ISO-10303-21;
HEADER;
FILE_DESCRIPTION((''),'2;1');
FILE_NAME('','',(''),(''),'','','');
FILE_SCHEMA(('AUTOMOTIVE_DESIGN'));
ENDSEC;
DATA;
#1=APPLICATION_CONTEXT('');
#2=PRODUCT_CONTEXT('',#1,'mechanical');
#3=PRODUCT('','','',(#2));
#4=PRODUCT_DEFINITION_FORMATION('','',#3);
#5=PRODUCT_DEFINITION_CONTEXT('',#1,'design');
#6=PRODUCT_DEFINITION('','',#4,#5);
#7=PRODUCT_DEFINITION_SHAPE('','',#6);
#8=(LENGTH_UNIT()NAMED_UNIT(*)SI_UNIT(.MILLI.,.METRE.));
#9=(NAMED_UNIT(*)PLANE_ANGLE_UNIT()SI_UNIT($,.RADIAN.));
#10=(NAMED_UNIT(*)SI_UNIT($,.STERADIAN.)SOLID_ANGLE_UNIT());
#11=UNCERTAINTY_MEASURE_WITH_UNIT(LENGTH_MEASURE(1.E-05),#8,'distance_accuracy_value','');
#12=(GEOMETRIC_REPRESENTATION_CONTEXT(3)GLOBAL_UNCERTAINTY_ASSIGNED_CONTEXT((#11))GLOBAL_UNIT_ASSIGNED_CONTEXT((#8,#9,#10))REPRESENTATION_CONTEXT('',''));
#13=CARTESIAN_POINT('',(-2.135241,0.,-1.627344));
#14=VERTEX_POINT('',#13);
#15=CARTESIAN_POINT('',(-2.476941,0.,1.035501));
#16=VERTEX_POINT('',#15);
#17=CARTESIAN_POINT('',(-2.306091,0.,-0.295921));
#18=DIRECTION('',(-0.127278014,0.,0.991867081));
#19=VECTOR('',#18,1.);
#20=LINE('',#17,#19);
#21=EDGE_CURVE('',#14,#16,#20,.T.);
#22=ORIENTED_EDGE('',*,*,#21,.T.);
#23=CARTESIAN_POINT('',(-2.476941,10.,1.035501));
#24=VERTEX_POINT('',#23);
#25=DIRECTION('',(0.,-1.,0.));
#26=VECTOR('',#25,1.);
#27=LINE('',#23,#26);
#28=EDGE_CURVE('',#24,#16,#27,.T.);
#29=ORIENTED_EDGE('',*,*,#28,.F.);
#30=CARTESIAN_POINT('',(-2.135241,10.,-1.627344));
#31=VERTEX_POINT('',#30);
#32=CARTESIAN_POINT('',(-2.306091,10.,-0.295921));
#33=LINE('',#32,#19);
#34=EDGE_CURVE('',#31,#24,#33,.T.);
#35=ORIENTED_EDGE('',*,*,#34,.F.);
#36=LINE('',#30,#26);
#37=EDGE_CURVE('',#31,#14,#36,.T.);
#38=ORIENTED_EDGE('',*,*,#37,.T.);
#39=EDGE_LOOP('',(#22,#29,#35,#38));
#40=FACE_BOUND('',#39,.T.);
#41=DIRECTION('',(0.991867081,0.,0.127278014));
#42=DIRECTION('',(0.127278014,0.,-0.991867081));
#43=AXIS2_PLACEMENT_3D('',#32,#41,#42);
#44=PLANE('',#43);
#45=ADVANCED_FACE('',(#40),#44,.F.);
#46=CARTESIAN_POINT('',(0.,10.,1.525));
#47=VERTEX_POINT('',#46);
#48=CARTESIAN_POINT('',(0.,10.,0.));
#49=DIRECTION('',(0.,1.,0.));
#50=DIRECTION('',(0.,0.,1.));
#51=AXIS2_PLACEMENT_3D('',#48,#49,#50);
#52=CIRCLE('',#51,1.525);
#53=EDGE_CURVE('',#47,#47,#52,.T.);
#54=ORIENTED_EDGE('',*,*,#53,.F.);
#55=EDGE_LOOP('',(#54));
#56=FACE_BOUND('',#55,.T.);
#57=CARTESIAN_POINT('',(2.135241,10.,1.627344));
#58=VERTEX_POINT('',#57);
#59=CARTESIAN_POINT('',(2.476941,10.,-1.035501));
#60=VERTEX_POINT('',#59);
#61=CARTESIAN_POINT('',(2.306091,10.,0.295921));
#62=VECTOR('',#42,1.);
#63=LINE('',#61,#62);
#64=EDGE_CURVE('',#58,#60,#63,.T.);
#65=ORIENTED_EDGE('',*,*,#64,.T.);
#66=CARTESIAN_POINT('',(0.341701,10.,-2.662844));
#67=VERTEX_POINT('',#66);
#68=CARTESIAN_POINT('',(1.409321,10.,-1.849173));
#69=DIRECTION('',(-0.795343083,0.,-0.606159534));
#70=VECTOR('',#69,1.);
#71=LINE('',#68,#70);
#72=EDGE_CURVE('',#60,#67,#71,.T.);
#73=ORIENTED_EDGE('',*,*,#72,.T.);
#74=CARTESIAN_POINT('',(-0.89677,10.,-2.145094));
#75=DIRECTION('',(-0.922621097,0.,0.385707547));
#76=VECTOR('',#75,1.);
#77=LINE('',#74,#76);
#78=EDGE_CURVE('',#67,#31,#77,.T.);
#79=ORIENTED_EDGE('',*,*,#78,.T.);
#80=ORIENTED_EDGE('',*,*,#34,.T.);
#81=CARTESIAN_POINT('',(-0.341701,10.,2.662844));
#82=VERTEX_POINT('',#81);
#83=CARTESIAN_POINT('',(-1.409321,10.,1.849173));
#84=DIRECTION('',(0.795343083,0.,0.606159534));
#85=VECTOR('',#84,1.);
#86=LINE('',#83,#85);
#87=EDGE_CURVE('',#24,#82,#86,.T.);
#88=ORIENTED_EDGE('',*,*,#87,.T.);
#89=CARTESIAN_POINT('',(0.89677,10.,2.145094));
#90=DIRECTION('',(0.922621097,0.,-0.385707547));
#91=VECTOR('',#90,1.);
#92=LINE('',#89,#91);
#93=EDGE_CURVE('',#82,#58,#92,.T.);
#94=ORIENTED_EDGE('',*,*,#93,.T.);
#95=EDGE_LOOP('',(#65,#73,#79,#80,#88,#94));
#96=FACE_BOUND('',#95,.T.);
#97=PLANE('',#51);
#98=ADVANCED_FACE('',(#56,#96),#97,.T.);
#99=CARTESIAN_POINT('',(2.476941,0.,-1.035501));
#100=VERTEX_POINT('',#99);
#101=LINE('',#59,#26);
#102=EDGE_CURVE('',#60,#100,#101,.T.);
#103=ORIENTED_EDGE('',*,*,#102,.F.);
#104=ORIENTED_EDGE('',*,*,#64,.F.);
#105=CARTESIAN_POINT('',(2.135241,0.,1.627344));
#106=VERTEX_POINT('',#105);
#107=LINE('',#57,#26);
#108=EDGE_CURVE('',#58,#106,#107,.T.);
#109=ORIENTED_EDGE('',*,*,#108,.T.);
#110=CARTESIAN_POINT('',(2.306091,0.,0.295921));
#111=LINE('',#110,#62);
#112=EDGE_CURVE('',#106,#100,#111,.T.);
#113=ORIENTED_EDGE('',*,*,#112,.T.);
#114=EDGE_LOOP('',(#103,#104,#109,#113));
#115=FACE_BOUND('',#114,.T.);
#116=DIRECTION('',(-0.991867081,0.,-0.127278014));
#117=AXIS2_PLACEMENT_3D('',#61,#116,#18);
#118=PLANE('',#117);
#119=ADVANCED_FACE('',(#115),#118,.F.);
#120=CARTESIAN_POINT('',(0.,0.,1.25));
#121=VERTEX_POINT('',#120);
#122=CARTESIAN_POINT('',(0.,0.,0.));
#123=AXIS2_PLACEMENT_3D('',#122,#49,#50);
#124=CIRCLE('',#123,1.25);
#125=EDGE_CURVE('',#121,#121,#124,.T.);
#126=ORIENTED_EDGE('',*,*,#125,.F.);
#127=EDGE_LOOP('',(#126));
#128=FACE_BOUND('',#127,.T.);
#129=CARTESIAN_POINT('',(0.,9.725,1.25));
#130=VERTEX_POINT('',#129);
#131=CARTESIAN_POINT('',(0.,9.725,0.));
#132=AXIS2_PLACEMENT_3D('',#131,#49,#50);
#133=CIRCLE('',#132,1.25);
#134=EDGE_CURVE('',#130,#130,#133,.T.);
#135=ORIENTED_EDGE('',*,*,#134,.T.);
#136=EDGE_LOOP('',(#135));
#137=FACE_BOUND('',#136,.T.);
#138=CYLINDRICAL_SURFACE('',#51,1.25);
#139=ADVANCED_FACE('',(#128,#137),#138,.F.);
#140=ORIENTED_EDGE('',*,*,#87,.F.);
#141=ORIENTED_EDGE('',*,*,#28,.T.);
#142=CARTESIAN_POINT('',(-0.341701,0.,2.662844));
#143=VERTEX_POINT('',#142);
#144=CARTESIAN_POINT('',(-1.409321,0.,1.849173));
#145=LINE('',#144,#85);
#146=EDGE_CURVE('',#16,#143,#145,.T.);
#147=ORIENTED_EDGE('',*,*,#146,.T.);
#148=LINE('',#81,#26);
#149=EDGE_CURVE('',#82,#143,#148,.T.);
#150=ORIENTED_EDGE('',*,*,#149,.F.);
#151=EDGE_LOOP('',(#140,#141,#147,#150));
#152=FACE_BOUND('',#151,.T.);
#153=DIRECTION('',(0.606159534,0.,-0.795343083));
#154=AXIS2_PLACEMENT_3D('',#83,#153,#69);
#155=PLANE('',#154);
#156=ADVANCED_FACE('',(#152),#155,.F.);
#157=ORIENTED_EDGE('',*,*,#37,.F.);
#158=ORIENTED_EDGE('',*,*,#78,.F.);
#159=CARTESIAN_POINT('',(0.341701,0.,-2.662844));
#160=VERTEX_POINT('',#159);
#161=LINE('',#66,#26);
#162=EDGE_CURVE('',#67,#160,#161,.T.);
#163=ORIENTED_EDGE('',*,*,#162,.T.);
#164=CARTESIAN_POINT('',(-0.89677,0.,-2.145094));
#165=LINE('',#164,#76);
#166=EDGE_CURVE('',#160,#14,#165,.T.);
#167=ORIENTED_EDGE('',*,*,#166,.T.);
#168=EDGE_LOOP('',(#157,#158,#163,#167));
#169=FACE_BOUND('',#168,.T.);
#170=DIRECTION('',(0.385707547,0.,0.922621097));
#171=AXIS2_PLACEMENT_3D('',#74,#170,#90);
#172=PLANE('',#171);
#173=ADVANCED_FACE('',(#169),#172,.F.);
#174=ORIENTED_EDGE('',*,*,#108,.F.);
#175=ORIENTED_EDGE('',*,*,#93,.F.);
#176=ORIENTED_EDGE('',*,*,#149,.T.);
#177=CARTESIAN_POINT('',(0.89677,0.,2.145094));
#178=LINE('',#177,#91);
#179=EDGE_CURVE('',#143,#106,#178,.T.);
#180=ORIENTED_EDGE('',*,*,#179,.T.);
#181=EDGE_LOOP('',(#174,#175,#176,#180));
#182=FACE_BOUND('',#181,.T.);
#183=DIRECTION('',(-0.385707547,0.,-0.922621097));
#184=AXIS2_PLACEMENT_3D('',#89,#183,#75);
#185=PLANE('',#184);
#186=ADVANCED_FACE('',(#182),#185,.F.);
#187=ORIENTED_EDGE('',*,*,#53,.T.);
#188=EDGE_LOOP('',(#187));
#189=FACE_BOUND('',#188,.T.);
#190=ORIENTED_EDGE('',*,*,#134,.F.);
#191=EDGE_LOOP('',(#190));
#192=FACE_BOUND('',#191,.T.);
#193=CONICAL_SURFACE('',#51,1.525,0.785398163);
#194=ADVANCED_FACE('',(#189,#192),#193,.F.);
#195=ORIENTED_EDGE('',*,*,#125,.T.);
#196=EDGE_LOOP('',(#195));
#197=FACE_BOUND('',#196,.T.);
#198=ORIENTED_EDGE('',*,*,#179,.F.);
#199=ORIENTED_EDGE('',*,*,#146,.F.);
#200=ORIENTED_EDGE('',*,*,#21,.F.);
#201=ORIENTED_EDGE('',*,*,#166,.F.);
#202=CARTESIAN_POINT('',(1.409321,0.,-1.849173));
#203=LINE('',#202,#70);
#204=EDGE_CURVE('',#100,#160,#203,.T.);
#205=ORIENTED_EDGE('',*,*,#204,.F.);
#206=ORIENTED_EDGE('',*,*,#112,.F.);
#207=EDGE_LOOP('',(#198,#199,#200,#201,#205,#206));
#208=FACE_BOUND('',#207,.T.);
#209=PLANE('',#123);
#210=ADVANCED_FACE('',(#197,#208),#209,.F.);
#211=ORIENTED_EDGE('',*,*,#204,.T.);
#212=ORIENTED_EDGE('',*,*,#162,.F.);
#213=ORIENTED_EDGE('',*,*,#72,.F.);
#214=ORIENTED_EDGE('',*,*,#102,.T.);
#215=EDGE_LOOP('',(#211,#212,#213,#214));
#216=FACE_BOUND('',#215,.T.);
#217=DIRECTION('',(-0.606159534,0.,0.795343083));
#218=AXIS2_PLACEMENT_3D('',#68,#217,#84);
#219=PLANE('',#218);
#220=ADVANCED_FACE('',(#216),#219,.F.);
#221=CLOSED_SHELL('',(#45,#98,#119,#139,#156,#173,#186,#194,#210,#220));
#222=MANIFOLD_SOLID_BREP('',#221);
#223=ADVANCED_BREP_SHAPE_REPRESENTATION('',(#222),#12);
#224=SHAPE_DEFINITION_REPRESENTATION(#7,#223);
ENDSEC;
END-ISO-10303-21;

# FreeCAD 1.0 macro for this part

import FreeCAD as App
import Part
import Sketcher

V = App.Vector
Q = App.Units.Quantity


def add_polygon(sketch, points):
    """Adds a closed chain of lines whose ends are joined by coincident constraints."""
    first, n = sketch.GeometryCount, len(points)
    for a, b in zip(points, points[1:] + points[:1]):
        sketch.addGeometry(Part.LineSegment(App.Vector(*a, 0), App.Vector(*b, 0)), False)
    for i in range(n):
        sketch.addConstraint(Sketcher.Constraint("Coincident", first + i, 2, first + (i + 1) % n, 1))

doc = App.newDocument("Part")
body = doc.addObject("PartDesign::Body", "Body")

sketch1 = body.newObject("Sketcher::SketchObject", "Sketch")
sketch1.AttachmentSupport = (doc.getObject("XZ_Plane"), [""])
sketch1.MapMode = "FlatFace"
add_polygon(sketch1, [(-2.5, 1), (-0.3, 2.7), (2.1, 1.6), (2.5, -1), (0.3, -2.7), (-2.1, -1.6)])
sketch1.addConstraint([
    Sketcher.Constraint("Symmetric", 0, 2, 3, 2, -1, 1),
    Sketcher.Constraint("Symmetric", 1, 2, 4, 2, -1, 1),
    Sketcher.Constraint("Symmetric", 2, 2, 5, 2, -1, 1),
    Sketcher.Constraint("Equal", 0, 1),
    Sketcher.Constraint("Equal", 1, 2),
    Sketcher.Constraint("DistanceY", 2, 2, 5, 2, Q("2.071002 mm")),
    Sketcher.Constraint("DistanceX", 0, 2, -1, 1, Q("0.341701 mm")),
    Sketcher.Constraint("DistanceY", 1, 2, 0, 2, Q("1.035501 mm")),
    Sketcher.Constraint("DistanceX", 1, 2, 2, 2, Q("0.341701 mm")),
])
pad1 = body.newObject("PartDesign::Pad", "Pad")
pad1.Profile = sketch1
pad1.Length = 10
pad1.Reversed = True

sketch2 = body.newObject("Sketcher::SketchObject", "Sketch001")
sketch2.AttachmentSupport = (doc.getObject("XZ_Plane"), [""])
sketch2.MapMode = "FlatFace"
sketch2.AttachmentOffset = App.Placement(V(0, 0, -10), App.Rotation())
sketch2.addGeometry(Part.Circle(V(0, 0, 0), V(0, 0, 1), 1.2), False)
sketch2.addConstraint([
    Sketcher.Constraint("Coincident", 0, 3, -1, 1),
    Sketcher.Constraint("Diameter", 0, Q("2.5 mm")),
])
doc.recompute()
hole = body.newObject("PartDesign::Hole", "Hole")
hole.Profile = sketch2
hole.ThreadType = "None"
hole.Diameter = 2.5
hole.DepthType = "ThroughAll"
hole.HoleCutType = "Countersink"
hole.HoleCutDiameter = 3.05
hole.HoleCutCountersinkAngle = 90
hole.Reversed = True

doc.recompute()
